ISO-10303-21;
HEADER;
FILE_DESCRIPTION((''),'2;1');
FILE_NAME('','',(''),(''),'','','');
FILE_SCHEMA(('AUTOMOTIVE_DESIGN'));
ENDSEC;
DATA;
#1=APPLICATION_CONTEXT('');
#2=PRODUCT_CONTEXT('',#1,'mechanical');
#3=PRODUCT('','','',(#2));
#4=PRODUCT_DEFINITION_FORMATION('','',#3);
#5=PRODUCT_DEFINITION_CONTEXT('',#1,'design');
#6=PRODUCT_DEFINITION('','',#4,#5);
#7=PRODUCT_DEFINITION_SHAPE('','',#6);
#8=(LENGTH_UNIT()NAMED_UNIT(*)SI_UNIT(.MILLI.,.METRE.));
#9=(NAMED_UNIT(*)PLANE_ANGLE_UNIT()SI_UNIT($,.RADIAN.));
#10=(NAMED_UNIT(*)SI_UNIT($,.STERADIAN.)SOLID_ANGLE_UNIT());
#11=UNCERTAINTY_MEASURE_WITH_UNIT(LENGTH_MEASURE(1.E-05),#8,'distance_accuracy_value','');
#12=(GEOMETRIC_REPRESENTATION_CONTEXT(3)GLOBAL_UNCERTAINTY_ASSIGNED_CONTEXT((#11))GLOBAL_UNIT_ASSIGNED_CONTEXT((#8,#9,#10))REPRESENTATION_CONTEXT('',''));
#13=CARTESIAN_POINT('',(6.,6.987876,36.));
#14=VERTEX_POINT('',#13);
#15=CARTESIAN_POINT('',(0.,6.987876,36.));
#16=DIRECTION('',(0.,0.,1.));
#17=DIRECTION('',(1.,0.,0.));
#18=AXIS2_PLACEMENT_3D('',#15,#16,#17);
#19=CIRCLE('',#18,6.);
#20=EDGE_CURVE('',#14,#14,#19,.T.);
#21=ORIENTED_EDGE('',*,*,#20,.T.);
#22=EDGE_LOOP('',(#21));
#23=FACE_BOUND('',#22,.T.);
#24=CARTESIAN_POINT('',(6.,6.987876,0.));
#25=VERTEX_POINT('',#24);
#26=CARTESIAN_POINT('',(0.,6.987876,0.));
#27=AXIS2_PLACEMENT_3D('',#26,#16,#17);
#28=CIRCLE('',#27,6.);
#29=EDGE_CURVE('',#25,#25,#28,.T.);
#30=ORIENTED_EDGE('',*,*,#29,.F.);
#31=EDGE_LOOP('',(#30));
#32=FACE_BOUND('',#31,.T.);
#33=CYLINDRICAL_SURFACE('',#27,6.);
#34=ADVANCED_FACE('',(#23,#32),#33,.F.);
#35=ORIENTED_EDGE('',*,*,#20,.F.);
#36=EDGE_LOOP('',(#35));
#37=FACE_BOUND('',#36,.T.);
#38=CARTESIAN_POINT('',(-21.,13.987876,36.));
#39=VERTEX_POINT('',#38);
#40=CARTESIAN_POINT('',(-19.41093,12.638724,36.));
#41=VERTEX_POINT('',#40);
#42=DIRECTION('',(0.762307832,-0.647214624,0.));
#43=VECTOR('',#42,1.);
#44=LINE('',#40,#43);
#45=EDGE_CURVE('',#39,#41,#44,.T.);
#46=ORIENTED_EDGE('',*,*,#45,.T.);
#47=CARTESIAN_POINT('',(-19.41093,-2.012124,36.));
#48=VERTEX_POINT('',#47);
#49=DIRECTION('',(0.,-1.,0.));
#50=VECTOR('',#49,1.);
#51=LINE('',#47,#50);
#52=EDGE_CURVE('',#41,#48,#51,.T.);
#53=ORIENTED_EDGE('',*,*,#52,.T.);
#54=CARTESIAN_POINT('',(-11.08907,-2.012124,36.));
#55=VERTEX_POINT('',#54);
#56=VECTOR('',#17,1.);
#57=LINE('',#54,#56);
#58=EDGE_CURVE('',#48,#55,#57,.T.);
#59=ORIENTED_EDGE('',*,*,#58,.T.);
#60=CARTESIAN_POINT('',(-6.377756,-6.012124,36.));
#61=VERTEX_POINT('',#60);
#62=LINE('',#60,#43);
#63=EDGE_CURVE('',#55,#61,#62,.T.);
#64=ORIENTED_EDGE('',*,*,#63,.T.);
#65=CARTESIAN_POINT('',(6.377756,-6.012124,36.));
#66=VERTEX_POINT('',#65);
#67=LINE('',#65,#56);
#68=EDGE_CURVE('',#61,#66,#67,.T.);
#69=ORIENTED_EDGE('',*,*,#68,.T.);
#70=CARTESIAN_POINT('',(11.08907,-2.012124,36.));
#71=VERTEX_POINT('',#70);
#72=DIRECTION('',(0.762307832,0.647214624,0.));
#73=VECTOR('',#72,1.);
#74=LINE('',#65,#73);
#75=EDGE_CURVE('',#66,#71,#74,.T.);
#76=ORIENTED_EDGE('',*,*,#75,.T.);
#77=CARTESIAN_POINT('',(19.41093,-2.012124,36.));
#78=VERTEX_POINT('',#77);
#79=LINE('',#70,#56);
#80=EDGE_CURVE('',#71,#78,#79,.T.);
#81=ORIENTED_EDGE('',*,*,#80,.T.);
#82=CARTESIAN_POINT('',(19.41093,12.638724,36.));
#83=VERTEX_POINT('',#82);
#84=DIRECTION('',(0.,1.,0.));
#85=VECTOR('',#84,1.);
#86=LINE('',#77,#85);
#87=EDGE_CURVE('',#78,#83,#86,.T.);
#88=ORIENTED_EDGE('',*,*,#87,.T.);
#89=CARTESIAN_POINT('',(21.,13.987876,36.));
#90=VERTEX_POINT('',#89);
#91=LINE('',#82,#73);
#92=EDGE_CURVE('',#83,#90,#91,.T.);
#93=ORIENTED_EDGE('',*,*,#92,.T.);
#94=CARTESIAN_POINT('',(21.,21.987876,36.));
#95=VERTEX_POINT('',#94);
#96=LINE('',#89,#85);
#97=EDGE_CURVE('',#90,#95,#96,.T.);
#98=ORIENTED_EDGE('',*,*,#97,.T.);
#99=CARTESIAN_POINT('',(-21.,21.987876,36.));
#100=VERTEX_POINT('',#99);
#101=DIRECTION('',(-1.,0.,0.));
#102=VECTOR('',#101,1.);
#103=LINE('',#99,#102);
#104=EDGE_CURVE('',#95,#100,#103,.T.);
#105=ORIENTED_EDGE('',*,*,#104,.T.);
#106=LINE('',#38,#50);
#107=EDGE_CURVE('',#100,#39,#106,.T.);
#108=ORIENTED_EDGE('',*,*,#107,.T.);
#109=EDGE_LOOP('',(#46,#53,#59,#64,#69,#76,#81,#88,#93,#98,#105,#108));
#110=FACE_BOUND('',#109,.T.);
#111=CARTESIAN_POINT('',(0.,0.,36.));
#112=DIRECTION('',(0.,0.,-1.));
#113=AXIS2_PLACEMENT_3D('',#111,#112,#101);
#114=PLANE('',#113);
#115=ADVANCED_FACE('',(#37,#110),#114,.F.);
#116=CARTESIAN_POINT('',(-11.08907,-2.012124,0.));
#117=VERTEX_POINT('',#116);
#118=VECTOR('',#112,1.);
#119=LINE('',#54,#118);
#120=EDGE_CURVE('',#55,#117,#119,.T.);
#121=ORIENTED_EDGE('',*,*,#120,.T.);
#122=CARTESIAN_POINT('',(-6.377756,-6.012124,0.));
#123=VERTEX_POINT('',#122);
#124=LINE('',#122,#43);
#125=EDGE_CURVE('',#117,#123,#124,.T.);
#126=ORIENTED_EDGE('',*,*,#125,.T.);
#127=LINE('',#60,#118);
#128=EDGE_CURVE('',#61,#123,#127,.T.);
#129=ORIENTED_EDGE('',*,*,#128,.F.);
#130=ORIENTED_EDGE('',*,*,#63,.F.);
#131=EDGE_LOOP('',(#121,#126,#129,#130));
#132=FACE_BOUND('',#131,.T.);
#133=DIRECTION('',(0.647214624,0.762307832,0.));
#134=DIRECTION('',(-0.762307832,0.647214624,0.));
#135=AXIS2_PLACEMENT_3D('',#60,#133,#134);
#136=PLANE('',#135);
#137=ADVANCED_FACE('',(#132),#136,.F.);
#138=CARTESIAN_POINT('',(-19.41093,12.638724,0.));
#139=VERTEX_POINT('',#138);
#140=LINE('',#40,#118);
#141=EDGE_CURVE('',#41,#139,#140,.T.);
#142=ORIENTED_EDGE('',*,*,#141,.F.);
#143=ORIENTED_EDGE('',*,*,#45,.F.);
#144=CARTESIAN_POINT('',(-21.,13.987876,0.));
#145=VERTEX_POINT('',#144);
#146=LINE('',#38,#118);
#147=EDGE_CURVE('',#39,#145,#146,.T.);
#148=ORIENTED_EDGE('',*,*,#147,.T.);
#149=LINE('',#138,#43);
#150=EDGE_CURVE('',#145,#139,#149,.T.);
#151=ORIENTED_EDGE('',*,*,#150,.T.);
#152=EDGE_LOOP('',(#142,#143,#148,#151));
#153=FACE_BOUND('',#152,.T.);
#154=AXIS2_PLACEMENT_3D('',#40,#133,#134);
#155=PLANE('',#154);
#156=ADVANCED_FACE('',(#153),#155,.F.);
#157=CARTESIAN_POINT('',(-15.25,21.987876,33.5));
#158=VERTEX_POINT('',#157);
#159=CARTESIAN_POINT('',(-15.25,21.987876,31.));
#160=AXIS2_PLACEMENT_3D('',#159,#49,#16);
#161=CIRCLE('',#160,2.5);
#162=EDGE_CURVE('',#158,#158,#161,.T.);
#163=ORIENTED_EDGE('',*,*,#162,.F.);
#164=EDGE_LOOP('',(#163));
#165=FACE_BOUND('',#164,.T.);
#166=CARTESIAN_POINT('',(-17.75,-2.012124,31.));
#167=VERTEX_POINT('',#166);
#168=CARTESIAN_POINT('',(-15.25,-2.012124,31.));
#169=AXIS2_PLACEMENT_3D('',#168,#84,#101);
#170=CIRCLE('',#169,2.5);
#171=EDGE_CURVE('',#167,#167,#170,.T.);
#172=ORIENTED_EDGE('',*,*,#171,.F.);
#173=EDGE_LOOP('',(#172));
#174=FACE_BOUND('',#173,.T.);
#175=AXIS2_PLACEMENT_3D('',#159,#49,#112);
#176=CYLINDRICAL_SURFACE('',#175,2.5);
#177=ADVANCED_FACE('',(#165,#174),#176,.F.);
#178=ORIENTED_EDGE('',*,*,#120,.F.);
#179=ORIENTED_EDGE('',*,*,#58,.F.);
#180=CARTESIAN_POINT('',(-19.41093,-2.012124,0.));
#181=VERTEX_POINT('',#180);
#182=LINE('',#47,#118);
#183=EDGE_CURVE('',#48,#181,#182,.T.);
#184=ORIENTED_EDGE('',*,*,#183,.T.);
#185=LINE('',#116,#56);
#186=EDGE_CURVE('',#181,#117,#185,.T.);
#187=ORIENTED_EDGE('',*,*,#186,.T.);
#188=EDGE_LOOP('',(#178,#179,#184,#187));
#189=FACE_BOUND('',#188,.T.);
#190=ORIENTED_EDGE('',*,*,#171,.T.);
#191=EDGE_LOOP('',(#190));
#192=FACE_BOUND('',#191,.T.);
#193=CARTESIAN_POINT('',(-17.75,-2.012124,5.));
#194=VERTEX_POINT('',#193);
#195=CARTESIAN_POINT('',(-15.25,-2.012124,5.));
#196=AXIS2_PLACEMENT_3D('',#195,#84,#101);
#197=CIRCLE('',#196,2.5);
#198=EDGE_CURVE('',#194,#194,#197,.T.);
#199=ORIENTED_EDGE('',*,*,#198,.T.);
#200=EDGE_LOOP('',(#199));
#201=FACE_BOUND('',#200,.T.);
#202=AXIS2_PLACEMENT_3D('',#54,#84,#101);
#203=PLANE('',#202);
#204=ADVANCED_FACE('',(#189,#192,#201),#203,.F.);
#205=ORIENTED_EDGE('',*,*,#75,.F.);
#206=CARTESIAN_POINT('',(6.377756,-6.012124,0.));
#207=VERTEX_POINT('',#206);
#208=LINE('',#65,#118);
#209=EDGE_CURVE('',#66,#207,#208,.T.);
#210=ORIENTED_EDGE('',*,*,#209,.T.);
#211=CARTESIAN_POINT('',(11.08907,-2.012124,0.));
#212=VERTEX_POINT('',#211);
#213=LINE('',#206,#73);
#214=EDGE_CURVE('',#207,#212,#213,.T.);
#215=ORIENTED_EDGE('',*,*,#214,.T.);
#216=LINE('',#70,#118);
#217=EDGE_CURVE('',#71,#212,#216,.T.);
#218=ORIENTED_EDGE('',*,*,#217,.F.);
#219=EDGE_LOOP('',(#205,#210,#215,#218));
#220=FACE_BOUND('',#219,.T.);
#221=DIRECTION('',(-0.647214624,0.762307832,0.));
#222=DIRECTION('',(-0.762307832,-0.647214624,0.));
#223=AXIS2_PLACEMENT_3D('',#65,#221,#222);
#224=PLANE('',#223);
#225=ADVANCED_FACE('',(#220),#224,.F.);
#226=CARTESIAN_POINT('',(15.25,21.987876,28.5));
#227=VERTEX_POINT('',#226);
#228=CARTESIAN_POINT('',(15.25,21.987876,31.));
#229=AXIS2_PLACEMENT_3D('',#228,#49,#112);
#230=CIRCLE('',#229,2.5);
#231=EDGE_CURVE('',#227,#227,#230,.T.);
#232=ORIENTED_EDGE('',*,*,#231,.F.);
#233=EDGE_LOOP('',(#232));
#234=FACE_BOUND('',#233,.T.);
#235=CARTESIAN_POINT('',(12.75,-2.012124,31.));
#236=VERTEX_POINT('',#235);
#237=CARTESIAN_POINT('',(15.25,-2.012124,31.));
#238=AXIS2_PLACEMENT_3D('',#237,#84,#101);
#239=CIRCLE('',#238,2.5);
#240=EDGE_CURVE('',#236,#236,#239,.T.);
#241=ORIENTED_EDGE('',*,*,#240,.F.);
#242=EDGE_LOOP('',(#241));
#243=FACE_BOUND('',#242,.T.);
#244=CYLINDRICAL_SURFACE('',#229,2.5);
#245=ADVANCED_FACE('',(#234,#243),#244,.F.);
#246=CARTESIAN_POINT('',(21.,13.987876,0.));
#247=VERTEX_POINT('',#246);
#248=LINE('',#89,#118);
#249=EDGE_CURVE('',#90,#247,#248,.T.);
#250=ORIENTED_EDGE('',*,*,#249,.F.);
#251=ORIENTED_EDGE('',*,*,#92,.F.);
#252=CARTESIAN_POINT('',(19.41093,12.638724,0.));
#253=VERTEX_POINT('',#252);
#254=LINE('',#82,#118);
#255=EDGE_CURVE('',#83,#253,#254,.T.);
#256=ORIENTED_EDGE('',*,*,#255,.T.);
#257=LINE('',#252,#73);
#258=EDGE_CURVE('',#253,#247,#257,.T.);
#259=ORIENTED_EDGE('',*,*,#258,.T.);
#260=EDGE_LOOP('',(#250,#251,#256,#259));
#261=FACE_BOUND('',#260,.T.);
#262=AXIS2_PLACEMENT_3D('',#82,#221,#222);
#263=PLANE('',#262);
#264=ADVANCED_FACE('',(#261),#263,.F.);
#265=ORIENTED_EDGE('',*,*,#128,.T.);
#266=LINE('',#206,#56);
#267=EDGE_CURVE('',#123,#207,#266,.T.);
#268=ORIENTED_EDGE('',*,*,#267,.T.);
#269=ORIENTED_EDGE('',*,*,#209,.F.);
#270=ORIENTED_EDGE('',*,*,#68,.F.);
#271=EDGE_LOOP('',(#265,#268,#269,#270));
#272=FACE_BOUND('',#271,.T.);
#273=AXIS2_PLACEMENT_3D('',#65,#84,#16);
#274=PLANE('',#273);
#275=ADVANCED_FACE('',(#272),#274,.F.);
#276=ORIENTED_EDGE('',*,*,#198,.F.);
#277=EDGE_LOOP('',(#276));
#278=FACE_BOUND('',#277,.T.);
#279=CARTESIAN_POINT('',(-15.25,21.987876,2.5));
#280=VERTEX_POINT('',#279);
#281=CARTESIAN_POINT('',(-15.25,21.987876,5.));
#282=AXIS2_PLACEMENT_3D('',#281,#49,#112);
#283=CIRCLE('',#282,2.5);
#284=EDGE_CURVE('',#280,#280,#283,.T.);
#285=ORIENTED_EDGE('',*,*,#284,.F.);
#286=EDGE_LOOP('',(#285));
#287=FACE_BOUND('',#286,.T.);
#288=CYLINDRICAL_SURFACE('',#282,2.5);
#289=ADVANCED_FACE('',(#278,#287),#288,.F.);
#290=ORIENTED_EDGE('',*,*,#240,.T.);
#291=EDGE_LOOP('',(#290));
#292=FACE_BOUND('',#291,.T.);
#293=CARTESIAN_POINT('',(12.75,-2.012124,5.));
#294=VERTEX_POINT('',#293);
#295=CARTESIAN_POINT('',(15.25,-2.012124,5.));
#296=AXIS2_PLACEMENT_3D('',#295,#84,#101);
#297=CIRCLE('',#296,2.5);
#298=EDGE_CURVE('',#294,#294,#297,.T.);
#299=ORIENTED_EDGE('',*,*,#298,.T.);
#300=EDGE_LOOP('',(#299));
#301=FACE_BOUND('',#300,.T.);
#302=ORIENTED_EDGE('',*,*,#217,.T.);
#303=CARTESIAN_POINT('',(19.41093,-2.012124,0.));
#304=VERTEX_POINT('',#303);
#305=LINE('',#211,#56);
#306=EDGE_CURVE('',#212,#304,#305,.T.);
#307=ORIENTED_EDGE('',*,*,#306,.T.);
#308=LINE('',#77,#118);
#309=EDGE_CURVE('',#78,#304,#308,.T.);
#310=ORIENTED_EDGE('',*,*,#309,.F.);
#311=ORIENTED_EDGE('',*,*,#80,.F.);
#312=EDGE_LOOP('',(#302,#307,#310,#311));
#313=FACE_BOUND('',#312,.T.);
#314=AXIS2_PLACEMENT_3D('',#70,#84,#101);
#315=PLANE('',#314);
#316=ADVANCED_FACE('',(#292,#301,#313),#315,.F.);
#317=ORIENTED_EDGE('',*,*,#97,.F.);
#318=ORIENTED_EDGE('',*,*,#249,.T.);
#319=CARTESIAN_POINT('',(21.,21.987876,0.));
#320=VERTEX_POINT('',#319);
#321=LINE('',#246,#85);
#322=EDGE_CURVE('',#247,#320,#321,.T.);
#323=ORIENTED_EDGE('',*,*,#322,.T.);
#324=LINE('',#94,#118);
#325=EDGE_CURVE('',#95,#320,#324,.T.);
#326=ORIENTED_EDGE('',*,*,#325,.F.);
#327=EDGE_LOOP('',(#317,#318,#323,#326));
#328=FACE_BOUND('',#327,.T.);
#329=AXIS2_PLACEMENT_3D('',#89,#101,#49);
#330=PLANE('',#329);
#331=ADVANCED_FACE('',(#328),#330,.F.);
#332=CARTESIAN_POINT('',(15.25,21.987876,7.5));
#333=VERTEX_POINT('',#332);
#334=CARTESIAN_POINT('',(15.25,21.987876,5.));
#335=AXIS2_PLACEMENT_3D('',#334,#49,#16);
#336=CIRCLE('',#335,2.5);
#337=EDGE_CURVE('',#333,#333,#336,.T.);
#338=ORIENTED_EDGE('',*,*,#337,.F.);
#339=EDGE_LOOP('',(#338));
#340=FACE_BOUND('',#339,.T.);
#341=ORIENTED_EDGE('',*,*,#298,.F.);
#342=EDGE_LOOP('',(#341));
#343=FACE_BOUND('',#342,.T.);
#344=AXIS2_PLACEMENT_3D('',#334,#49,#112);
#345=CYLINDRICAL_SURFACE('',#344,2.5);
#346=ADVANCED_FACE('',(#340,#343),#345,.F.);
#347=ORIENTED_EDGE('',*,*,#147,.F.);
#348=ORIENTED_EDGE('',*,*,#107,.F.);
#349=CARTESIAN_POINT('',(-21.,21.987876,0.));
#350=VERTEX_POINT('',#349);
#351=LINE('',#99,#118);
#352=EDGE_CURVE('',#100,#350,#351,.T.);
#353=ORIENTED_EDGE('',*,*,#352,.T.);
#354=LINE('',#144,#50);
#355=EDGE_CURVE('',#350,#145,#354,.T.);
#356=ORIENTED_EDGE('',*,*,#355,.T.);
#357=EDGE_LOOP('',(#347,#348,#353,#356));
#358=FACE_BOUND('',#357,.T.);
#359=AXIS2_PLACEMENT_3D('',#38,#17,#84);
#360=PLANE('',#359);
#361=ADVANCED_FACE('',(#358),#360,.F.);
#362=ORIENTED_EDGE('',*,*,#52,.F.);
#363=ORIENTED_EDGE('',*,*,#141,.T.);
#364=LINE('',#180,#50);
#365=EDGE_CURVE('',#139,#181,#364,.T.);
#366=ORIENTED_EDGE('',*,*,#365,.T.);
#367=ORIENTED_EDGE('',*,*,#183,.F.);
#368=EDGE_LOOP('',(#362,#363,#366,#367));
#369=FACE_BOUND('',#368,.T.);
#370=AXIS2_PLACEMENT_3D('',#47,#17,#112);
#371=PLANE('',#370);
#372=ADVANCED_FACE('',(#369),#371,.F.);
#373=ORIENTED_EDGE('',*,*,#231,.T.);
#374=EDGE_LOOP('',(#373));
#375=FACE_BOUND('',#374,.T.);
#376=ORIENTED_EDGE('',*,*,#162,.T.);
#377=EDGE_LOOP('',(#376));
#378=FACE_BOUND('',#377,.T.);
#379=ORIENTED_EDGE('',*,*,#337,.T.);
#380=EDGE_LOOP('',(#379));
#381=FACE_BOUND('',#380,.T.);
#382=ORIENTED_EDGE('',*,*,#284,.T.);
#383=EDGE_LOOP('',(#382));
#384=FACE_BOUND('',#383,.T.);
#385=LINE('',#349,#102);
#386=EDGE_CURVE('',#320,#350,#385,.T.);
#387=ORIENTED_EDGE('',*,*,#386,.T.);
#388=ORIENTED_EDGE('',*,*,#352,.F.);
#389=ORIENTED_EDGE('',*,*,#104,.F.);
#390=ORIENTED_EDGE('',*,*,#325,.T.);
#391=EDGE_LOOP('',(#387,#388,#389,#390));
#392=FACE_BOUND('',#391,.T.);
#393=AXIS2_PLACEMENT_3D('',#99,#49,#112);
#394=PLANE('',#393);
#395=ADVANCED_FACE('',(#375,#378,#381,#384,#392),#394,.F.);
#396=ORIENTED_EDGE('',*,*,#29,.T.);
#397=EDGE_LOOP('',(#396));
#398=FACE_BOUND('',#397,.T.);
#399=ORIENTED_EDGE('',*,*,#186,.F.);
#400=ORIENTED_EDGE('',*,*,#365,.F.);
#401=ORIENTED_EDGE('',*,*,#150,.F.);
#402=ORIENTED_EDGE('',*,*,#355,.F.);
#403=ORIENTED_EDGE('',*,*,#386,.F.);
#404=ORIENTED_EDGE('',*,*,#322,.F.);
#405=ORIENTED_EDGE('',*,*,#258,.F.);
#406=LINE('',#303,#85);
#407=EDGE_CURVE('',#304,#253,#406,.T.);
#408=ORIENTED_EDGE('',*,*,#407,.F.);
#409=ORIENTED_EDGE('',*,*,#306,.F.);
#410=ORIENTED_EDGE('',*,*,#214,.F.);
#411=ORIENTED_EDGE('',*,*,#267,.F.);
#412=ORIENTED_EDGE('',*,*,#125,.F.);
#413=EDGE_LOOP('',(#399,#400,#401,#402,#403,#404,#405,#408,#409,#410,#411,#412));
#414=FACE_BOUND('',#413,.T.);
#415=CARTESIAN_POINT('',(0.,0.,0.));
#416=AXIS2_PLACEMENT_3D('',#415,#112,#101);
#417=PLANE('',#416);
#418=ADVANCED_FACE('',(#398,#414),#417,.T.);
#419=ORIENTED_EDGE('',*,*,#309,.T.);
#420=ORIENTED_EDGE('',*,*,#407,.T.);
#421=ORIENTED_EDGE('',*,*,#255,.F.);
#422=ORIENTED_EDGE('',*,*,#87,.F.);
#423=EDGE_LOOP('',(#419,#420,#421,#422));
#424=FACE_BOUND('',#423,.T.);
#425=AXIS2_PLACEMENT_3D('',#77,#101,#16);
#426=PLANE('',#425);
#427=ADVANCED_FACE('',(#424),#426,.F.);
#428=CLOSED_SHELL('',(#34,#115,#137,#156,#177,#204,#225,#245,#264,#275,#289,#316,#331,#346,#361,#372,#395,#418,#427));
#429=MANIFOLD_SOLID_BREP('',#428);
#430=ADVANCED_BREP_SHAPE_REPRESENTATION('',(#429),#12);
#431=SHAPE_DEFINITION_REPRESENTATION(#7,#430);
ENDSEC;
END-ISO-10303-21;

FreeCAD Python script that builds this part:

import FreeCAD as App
import Part
import Sketcher
from FreeCAD import Vector
Q = App.Units.Quantity

doc = App.newDocument("Part")
body = doc.addObject("PartDesign::Body", "Body")

# Sketch on XY plane
sketch1 = body.newObject("Sketcher::SketchObject", "Sketch")
sketch1.AttachmentSupport = (doc.getObject("XY_Plane"), [""])
sketch1.MapMode = "FlatFace"
sketch1.addGeometry([
    Part.LineSegment(Vector(-6.4, -6, 0), Vector(6.4, -6, 0)),  # 0
    Part.LineSegment(Vector(6.4, -6, 0), Vector(11.1, -2, 0)),  # 1
    Part.LineSegment(Vector(11.1, -2, 0), Vector(19.4, -2, 0)),  # 2
    Part.LineSegment(Vector(19.4, -2, 0), Vector(19.4, 12.6, 0)),  # 3
    Part.LineSegment(Vector(19.4, 12.6, 0), Vector(21, 14, 0)),  # 4
    Part.LineSegment(Vector(21, 14, 0), Vector(21, 22, 0)),  # 5
    Part.LineSegment(Vector(21, 22, 0), Vector(-21, 22, 0)),  # 6
    Part.LineSegment(Vector(-21, 22, 0), Vector(-21, 14, 0)),  # 7
    Part.LineSegment(Vector(-21, 14, 0), Vector(-19.4, 12.6, 0)),  # 8
    Part.LineSegment(Vector(-19.4, 12.6, 0), Vector(-19.4, -2, 0)),  # 9
    Part.LineSegment(Vector(-19.4, -2, 0), Vector(-11.1, -2, 0)),  # 10
    Part.LineSegment(Vector(-11.1, -2, 0), Vector(-6.4, -6, 0)),  # 11
], False)
sketch1.addConstraint([
    Sketcher.Constraint("Coincident", 0, 2, 1, 1),
    Sketcher.Constraint("Coincident", 1, 2, 2, 1),
    Sketcher.Constraint("Coincident", 2, 2, 3, 1),
    Sketcher.Constraint("Coincident", 3, 2, 4, 1),
    Sketcher.Constraint("Coincident", 4, 2, 5, 1),
    Sketcher.Constraint("Coincident", 5, 2, 6, 1),
    Sketcher.Constraint("Coincident", 6, 2, 7, 1),
    Sketcher.Constraint("Coincident", 7, 2, 8, 1),
    Sketcher.Constraint("Coincident", 8, 2, 9, 1),
    Sketcher.Constraint("Coincident", 9, 2, 10, 1),
    Sketcher.Constraint("Coincident", 10, 2, 11, 1),
    Sketcher.Constraint("Coincident", 11, 2, 0, 1),
    Sketcher.Constraint("Horizontal", 0),
    Sketcher.Constraint("Horizontal", 2),
    Sketcher.Constraint("Vertical", 3),
    Sketcher.Constraint("Vertical", 5),
    Sketcher.Constraint("Horizontal", 6),
    Sketcher.Constraint("Vertical", 7),
    Sketcher.Constraint("Vertical", 9),
    Sketcher.Constraint("Horizontal", 10),
    Sketcher.Constraint("Symmetric", 4, 2, 7, 2, -2),
    Sketcher.Constraint("Symmetric", 3, 2, 8, 2, -2),
    Sketcher.Constraint("Symmetric", 1, 2, 10, 2, -2),
    Sketcher.Constraint("Parallel", 1, 4),
    Sketcher.Constraint("Parallel", 8, 11),
    Sketcher.Constraint("DistanceX", 6, 2, 6, 1, Q("42 mm")),
    Sketcher.Constraint("DistanceY", 5, 1, 5, 2, Q("8 mm")),
    Sketcher.Constraint("DistanceY", 0, 2, 1, 2, Q("4 mm")),
    Sketcher.Constraint("DistanceY", 2, 2, 4, 2, Q("16 mm")),
    Sketcher.Constraint("DistanceX", 8, 2, 1, 2, Q("30.5 mm")),
    Sketcher.Constraint("DistanceX", 2, 1, 2, 2, Q("8.32186 mm")),
    Sketcher.Constraint("Distance", 1, Q("6.18033 mm")),
    Sketcher.Constraint("DistanceY", 0, 2, -1, 1, Q("6.012124 mm")),
])
pad1 = body.newObject("PartDesign::Pad", "Pad")
pad1.Profile = sketch1
pad1.Length = 36

# Sketch on XY plane
sketch2 = body.newObject("Sketcher::SketchObject", "Sketch001")
sketch2.AttachmentSupport = (doc.getObject("XY_Plane"), [""])
sketch2.MapMode = "FlatFace"
sketch2.AttachmentOffset = App.Placement(Vector(0, 0, 36), App.Rotation())
sketch2.addGeometry(Part.Circle(Vector(0, 7, 0), Vector(0, 0, 1), 6), False)
sketch2.addConstraint([
    Sketcher.Constraint("PointOnObject", 0, 3, -2),
    Sketcher.Constraint("Diameter", 0, Q("12 mm")),
    Sketcher.Constraint("DistanceY", -1, 1, 0, 3, Q("6.987876 mm")),
])
pocket1 = body.newObject("PartDesign::Pocket", "Pocket")
pocket1.Profile = sketch2
pocket1.Type = "ThroughAll"

# Sketch on XZ plane
sketch3 = body.newObject("Sketcher::SketchObject", "Sketch002")
sketch3.AttachmentSupport = (doc.getObject("XZ_Plane"), [""])
sketch3.MapMode = "FlatFace"
sketch3.AttachmentOffset = App.Placement(Vector(0, 0, 6.012124), App.Rotation())
sketch3.addGeometry([
    Part.Circle(Vector(-15.2, 5, 0), Vector(0, 0, 1), 2.5),
    Part.Circle(Vector(-15.2, 31, 0), Vector(0, 0, 1), 2.5),
    Part.Circle(Vector(15.2, 5, 0), Vector(0, 0, 1), 2.5),
    Part.Circle(Vector(15.2, 31, 0), Vector(0, 0, 1), 2.5),
], False)
sketch3.addConstraint([
    Sketcher.Constraint("Equal", 0, 1),
    Sketcher.Constraint("Equal", 1, 2),
    Sketcher.Constraint("Equal", 2, 3),
    Sketcher.Constraint("Symmetric", 0, 3, 2, 3, -2),
    Sketcher.Constraint("Symmetric", 1, 3, 3, 3, -2),
    Sketcher.Constraint("Vertical", 0, 3, 1, 3),
    Sketcher.Constraint("Diameter", 0, Q("5 mm")),
    Sketcher.Constraint("DistanceY", -1, 1, 0, 3, Q("5 mm")),
    Sketcher.Constraint("DistanceY", -1, 1, 1, 3, Q("31 mm")),
    Sketcher.Constraint("DistanceX", 0, 3, 2, 3, Q("30.5 mm")),
])
pocket2 = body.newObject("PartDesign::Pocket", "Pocket001")
pocket2.Profile = sketch3
pocket2.Type = "ThroughAll"

doc.recompute()
